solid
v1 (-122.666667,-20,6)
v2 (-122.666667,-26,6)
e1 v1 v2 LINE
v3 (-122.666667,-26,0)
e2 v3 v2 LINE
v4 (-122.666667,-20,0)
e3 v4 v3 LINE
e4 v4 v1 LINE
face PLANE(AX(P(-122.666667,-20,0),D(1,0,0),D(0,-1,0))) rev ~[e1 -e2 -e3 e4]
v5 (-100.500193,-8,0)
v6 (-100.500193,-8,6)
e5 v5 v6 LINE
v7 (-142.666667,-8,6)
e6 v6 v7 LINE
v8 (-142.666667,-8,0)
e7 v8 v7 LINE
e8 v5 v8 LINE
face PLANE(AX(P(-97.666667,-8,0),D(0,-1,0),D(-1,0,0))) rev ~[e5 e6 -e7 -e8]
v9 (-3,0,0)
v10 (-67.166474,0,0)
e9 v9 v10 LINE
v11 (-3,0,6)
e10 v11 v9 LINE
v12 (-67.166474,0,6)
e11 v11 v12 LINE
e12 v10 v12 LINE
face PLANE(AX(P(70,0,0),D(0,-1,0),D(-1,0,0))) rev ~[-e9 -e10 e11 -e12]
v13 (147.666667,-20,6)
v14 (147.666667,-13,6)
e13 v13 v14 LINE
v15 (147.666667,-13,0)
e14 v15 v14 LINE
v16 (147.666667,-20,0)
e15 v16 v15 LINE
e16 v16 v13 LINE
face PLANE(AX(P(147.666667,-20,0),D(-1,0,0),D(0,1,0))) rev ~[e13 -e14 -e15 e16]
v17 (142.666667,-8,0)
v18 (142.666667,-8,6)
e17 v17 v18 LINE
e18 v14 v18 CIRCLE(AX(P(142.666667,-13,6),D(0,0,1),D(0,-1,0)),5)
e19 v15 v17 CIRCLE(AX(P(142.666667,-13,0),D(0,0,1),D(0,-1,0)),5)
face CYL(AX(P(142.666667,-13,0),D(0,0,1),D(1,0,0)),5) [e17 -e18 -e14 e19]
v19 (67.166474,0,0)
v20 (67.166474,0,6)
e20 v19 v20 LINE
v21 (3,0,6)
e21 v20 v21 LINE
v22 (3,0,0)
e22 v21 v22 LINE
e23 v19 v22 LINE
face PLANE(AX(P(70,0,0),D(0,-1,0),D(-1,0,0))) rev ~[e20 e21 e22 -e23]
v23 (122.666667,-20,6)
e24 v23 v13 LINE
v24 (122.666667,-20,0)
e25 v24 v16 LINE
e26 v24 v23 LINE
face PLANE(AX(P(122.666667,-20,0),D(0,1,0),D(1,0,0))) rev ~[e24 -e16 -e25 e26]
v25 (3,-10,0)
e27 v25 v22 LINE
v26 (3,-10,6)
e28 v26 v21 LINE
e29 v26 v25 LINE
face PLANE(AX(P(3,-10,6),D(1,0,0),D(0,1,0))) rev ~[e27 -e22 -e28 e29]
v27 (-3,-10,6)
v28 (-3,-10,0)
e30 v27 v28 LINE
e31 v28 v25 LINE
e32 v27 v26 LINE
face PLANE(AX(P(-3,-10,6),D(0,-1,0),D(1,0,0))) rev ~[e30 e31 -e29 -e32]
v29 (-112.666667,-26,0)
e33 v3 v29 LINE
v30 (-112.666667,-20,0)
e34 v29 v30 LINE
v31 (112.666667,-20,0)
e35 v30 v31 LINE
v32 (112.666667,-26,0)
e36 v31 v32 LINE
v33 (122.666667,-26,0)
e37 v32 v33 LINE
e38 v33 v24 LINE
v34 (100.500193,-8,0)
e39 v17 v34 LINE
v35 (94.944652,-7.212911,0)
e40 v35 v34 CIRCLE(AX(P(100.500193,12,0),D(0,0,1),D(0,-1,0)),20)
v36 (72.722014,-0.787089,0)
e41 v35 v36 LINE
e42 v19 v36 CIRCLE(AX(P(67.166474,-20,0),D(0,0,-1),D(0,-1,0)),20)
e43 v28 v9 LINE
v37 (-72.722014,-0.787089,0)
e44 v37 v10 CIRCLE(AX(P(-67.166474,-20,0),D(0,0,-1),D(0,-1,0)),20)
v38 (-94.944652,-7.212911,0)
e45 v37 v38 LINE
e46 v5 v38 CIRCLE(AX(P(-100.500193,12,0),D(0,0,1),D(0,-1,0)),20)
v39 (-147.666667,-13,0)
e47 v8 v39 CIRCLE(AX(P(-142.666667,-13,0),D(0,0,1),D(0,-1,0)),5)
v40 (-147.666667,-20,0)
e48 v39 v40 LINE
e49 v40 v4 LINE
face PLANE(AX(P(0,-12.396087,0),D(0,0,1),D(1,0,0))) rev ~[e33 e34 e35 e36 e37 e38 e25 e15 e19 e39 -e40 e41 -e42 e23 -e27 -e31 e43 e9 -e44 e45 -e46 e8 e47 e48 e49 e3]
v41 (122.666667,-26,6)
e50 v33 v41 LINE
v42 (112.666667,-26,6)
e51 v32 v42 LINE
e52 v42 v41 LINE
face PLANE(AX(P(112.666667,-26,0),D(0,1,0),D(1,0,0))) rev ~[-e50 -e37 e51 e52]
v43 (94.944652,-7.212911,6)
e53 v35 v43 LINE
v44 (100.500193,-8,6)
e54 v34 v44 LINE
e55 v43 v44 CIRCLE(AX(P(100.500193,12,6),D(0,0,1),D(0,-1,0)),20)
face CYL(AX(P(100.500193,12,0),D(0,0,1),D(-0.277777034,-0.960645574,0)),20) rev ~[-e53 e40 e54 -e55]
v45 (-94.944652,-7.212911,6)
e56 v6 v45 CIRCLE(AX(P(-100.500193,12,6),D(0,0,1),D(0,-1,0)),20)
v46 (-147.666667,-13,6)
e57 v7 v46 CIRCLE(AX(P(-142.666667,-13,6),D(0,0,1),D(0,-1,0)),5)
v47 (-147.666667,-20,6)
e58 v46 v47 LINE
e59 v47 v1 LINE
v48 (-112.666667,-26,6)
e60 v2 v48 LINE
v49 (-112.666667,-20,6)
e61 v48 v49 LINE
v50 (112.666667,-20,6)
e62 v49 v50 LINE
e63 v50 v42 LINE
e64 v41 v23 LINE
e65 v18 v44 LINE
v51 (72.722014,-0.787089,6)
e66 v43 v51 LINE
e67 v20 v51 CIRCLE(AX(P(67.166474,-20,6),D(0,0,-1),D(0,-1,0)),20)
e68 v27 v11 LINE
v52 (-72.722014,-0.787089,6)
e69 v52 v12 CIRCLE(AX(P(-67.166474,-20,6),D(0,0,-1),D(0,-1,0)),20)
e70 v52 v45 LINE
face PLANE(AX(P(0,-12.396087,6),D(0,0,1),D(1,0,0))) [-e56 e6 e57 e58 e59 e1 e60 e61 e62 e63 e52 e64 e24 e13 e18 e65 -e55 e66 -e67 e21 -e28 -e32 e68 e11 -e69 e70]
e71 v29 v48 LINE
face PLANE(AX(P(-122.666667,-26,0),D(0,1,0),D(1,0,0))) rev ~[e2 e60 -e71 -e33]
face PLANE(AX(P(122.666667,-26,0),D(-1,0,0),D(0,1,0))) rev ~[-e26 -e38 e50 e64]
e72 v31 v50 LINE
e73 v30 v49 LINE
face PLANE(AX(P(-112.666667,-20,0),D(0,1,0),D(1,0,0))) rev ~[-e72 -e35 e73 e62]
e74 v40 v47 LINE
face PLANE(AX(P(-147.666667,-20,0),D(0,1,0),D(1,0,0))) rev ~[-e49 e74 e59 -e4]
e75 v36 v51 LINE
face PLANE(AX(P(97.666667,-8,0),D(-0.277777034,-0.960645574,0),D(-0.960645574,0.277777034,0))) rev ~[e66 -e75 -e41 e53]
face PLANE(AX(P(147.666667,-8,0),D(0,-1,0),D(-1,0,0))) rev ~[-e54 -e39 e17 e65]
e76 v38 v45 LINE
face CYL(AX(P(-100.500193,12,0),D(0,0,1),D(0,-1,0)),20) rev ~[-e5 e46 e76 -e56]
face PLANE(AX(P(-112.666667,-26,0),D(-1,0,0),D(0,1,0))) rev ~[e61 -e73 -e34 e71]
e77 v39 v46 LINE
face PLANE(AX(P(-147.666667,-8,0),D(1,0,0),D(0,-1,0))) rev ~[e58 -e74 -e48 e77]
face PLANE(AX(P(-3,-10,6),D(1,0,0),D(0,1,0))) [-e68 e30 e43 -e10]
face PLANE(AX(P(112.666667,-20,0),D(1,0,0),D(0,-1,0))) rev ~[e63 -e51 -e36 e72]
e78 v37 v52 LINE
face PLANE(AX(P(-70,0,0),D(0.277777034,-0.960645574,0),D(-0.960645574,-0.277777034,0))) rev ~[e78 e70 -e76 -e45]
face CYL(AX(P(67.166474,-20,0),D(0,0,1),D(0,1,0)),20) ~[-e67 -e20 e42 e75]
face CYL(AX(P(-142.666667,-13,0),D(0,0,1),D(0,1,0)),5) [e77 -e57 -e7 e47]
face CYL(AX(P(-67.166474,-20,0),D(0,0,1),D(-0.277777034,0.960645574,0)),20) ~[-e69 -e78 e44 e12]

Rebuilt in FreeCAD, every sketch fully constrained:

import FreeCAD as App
import Part
import Sketcher
from FreeCAD import Vector


def edges_at(feature, points):
    """Names of the edges that pass closest to the given points."""
    edges = feature.Shape.Edges
    near = lambda p: min(range(len(edges)), key=lambda i: edges[i].distToShape(Part.Vertex(*p))[0])
    return sorted({f"Edge{near(p) + 1}" for p in points})

doc = App.newDocument("Part")
params = doc.addObject("Spreadsheet::Sheet", "Params")
for row, (alias, value) in enumerate([
    ("sketch1_width", "140 mm"),
    ("sketch1_width2", "50 mm"),
    ("sketch1_width3", "25 mm"),
    ("sketch1_width4", "10 mm"),
    ("sketch1_height", "12 mm"),
    ("pad1_length", "6 mm"),
    ("fillet_radius", "5 mm"),
    ("fillet2_radius", "20 mm"),
    ("sketch2_width", "6 mm"),
    ("sketch2_height", "10 mm"),
], start=1):
    params.set(f"A{row}", alias)
    params.set(f"B{row}", "=" + value)
    params.setAlias(f"B{row}", alias)

body = doc.addObject("PartDesign::Body", "Body")

sketch1 = body.newObject("Sketcher::SketchObject", "Sketch")
sketch1.AttachmentSupport = (doc.getObject("XY_Plane"), [""])
sketch1.MapMode = "FlatFace"
sketch1.addGeometry([
    Part.LineSegment(Vector(70, 0, 0), Vector(-70, 0, 0)),
    Part.LineSegment(Vector(-70, 0, 0), Vector(-98, -8, 0)),
    Part.LineSegment(Vector(-98, -8, 0), Vector(-148, -8, 0)),
    Part.LineSegment(Vector(-148, -8, 0), Vector(-148, -20, 0)),
    Part.LineSegment(Vector(-148, -20, 0), Vector(-123, -20, 0)),
    Part.LineSegment(Vector(-123, -20, 0), Vector(-123, -26, 0)),
    Part.LineSegment(Vector(-123, -26, 0), Vector(-113, -26, 0)),
    Part.LineSegment(Vector(-113, -26, 0), Vector(-113, -20, 0)),
    Part.LineSegment(Vector(-113, -20, 0), Vector(113, -20, 0)),
    Part.LineSegment(Vector(113, -20, 0), Vector(113, -26, 0)),
    Part.LineSegment(Vector(113, -26, 0), Vector(123, -26, 0)),
    Part.LineSegment(Vector(123, -26, 0), Vector(123, -20, 0)),
    Part.LineSegment(Vector(123, -20, 0), Vector(148, -20, 0)),
    Part.LineSegment(Vector(148, -20, 0), Vector(148, -8, 0)),
    Part.LineSegment(Vector(148, -8, 0), Vector(98, -8, 0)),
    Part.LineSegment(Vector(98, -8, 0), Vector(70, 0, 0)),
], False)
sketch1.addConstraint([
    Sketcher.Constraint("Coincident", 0, 2, 1, 1),
    Sketcher.Constraint("Coincident", 1, 2, 2, 1),
    Sketcher.Constraint("Coincident", 2, 2, 3, 1),
    Sketcher.Constraint("Coincident", 3, 2, 4, 1),
    Sketcher.Constraint("Coincident", 4, 2, 5, 1),
    Sketcher.Constraint("Coincident", 5, 2, 6, 1),
    Sketcher.Constraint("Coincident", 6, 2, 7, 1),
    Sketcher.Constraint("Coincident", 7, 2, 8, 1),
    Sketcher.Constraint("Coincident", 8, 2, 9, 1),
    Sketcher.Constraint("Coincident", 9, 2, 10, 1),
    Sketcher.Constraint("Coincident", 10, 2, 11, 1),
    Sketcher.Constraint("Coincident", 11, 2, 12, 1),
    Sketcher.Constraint("Coincident", 12, 2, 13, 1),
    Sketcher.Constraint("Coincident", 13, 2, 14, 1),
    Sketcher.Constraint("Coincident", 14, 2, 15, 1),
    Sketcher.Constraint("Coincident", 15, 2, 0, 1),
    Sketcher.Constraint("Horizontal", 0),
    Sketcher.Constraint("Horizontal", 2),
    Sketcher.Constraint("Vertical", 3),
    Sketcher.Constraint("Horizontal", 4),
    Sketcher.Constraint("Vertical", 5),
    Sketcher.Constraint("Horizontal", 6),
    Sketcher.Constraint("Vertical", 7),
    Sketcher.Constraint("Horizontal", 8),
    Sketcher.Constraint("Vertical", 9),
    Sketcher.Constraint("Horizontal", 10),
    Sketcher.Constraint("Vertical", 11),
    Sketcher.Constraint("Horizontal", 12),
    Sketcher.Constraint("Vertical", 13),
    Sketcher.Constraint("Horizontal", 14),
    Sketcher.Constraint("Symmetric", 0, 2, 15, 2, -1, 1),
    Sketcher.Constraint("Symmetric", 6, 2, 9, 2, -2),
    Sketcher.Constraint("Symmetric", 4, 2, 11, 2, -2),
    Sketcher.Constraint("Symmetric", 2, 2, 13, 2, -2),
    Sketcher.Constraint("Horizontal", 4, 2, 7, 2),
    Sketcher.Constraint("Equal", 2, 14),
    Sketcher.Constraint("DistanceX", 0, 2, 0, 1, 140.0),
    Sketcher.Constraint("DistanceX", 2, 2, 2, 1, 50.0),
    Sketcher.Constraint("DistanceX", 4, 1, 4, 2, 25.0),
    Sketcher.Constraint("DistanceX", 6, 1, 6, 2, 10.0),
    Sketcher.Constraint("DistanceY", 3, 2, 3, 1, 12.0),
    Sketcher.Constraint("DistanceY", 5, 2, 5, 1, 6.0),
    Sketcher.Constraint("DistanceY", 1, 2, -1, 1, 8.0),
    Sketcher.Constraint("DistanceX", 8, 1, 8, 2, 225.333333),
])
sketch1.setExpression("Constraints[36]", "Params.sketch1_width")
sketch1.setExpression("Constraints[37]", "Params.sketch1_width2")
sketch1.setExpression("Constraints[38]", "Params.sketch1_width3")
sketch1.setExpression("Constraints[39]", "Params.sketch1_width4")
sketch1.setExpression("Constraints[40]", "Params.sketch1_height")
pad1 = body.newObject("PartDesign::Pad", "Pad")
pad1.Profile = sketch1
pad1.setExpression("Length", "Params.pad1_length")
doc.recompute()

fillet = body.newObject("PartDesign::Fillet", "Fillet")
fillet.Base = (pad1, edges_at(pad1, [(-147.667, -8, 3), (147.667, -8, 3)]))
fillet.setExpression("Radius", "Params.fillet_radius")
doc.recompute()

fillet2 = body.newObject("PartDesign::Fillet", "Fillet001")
fillet2.Base = (fillet, edges_at(fillet, [
    (-97.667, -8, 3),
    (-70, 0, 3),
    (70, 0, 3),
    (97.667, -8, 3),
]))
fillet2.setExpression("Radius", "Params.fillet2_radius")

sketch2 = body.newObject("Sketcher::SketchObject", "Sketch001")
sketch2.AttachmentSupport = (doc.getObject("XY_Plane"), [""])
sketch2.MapMode = "FlatFace"
sketch2.AttachmentOffset = App.Placement(Vector(0, 0, 6), App.Rotation())
sketch2.addGeometry([
    Part.LineSegment(Vector(-3, 0, 0), Vector(-3, -10, 0)),
    Part.LineSegment(Vector(-3, -10, 0), Vector(3, -10, 0)),
    Part.LineSegment(Vector(3, -10, 0), Vector(3, 0, 0)),
    Part.LineSegment(Vector(3, 0, 0), Vector(-3, 0, 0)),
], False)
sketch2.addConstraint([
    Sketcher.Constraint("Coincident", 0, 2, 1, 1),
    Sketcher.Constraint("Coincident", 1, 2, 2, 1),
    Sketcher.Constraint("Coincident", 2, 2, 3, 1),
    Sketcher.Constraint("Coincident", 3, 2, 0, 1),
    Sketcher.Constraint("Vertical", 0),
    Sketcher.Constraint("Horizontal", 1),
    Sketcher.Constraint("Vertical", 2),
    Sketcher.Constraint("Horizontal", 3),
    Sketcher.Constraint("Symmetric", 2, 2, 3, 2, -1, 1),
    Sketcher.Constraint("DistanceX", 1, 1, 1, 2, 6.0),
    Sketcher.Constraint("DistanceY", 0, 2, 0, 1, 10.0),
])
sketch2.setExpression("Constraints[9]", "Params.sketch2_width")
sketch2.setExpression("Constraints[10]", "Params.sketch2_height")
pocket1 = body.newObject("PartDesign::Pocket", "Pocket")
pocket1.Profile = sketch2
pocket1.Type = "ThroughAll"
pocket1.Midplane = True

doc.recompute()
